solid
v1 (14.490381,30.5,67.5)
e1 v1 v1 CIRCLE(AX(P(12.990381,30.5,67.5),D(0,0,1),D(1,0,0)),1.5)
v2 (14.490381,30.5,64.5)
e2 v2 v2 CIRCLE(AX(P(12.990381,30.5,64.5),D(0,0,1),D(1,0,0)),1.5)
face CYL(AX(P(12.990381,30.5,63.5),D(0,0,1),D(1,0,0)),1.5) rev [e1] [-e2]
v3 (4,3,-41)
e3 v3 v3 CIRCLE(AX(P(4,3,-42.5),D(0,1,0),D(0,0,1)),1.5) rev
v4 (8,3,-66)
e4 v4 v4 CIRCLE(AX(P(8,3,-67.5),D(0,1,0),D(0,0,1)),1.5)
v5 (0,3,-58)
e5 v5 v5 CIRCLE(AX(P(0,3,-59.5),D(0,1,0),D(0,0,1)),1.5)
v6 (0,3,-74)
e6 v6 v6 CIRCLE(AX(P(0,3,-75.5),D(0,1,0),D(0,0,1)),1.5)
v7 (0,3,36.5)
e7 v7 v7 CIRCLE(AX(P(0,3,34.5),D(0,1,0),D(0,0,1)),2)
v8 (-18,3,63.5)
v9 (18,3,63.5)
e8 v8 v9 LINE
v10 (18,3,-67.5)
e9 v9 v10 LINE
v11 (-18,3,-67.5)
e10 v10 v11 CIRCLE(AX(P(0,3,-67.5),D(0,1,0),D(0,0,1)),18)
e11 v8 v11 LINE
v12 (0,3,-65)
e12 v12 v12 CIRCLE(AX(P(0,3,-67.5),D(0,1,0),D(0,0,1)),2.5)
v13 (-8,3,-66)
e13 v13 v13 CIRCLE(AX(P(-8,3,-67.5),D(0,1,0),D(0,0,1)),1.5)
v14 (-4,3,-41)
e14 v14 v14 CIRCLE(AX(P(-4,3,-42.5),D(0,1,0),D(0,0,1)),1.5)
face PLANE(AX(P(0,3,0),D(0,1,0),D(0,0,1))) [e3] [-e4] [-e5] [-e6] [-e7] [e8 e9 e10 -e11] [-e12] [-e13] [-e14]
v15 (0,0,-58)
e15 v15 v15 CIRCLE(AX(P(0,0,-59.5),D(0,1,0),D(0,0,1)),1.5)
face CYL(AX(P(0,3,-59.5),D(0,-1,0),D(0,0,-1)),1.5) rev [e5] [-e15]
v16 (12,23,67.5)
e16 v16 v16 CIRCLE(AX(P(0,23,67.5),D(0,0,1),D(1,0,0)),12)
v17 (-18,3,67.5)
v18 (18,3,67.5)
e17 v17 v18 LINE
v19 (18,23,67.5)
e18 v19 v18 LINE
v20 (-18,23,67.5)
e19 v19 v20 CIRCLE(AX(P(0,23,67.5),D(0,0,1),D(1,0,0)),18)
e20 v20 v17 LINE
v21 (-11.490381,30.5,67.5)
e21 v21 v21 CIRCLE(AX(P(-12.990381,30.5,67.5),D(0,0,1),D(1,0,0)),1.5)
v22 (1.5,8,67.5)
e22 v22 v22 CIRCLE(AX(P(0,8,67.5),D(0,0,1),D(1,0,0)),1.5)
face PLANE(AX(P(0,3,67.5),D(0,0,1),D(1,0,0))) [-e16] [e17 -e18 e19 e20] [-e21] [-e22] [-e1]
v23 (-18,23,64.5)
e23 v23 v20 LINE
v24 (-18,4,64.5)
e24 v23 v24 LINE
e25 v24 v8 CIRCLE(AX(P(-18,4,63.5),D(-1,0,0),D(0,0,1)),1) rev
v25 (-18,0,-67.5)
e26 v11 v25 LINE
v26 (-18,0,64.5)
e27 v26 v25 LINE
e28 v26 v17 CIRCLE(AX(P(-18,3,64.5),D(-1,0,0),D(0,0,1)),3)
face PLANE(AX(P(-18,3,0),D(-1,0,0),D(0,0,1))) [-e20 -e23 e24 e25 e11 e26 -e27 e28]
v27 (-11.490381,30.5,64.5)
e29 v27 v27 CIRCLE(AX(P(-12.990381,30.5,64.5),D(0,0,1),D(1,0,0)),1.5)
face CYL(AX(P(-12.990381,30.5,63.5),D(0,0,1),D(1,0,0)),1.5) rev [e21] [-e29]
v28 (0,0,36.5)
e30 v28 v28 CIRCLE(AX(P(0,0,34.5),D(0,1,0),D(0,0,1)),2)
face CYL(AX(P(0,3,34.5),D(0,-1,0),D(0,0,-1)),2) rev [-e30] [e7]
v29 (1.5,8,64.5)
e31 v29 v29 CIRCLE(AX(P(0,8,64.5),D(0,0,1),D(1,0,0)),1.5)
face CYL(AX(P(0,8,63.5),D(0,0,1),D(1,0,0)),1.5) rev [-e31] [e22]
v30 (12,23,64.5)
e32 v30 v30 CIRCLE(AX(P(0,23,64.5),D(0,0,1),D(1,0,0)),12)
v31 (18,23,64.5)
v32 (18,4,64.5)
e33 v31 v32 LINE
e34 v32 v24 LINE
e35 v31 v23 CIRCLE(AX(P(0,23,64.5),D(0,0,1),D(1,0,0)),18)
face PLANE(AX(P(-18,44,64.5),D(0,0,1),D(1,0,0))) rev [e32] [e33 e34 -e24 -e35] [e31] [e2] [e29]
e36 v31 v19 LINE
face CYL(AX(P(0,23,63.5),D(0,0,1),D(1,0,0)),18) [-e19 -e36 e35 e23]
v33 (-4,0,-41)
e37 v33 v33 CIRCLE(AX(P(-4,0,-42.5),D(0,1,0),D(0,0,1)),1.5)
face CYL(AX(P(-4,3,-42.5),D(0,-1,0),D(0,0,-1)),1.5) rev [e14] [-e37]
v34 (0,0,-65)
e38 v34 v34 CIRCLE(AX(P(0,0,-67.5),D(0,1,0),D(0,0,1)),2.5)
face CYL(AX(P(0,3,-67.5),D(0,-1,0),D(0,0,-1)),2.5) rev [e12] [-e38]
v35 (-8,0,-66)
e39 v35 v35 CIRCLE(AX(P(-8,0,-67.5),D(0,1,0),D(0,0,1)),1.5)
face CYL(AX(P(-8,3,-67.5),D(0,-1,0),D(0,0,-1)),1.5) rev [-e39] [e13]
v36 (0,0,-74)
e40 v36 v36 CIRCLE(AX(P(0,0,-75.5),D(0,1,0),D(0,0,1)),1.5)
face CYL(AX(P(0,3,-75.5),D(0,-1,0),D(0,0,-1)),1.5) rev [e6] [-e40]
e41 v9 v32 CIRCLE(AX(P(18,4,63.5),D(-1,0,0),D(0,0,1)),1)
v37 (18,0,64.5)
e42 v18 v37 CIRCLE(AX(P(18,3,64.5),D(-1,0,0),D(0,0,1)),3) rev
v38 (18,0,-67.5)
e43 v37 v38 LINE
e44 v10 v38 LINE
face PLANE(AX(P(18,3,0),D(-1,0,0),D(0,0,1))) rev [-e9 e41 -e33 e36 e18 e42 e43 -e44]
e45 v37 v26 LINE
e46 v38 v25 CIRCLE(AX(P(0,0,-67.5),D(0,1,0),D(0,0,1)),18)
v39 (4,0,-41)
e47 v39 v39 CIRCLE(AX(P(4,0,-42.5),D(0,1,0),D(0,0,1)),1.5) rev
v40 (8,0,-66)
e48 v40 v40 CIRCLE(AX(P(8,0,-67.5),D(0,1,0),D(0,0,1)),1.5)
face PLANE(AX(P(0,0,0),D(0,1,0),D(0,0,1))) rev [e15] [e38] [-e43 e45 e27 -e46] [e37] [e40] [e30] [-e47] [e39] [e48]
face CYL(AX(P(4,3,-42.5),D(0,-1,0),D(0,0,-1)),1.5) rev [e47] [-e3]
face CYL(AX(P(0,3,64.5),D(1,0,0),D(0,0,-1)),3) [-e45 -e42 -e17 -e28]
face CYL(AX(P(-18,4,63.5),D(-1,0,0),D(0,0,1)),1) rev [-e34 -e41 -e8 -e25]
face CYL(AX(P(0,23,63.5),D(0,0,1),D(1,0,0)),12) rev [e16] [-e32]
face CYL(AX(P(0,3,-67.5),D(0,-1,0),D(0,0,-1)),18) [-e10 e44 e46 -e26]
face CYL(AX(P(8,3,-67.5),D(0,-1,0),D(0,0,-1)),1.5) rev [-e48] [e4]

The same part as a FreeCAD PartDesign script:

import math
import FreeCAD as App
import Part
import Sketcher

V = App.Vector


def edges_at(feature, points):
    """Names of the edges that pass closest to the given points."""
    edges = feature.Shape.Edges
    near = lambda p: min(range(len(edges)), key=lambda i: edges[i].distToShape(Part.Vertex(*p))[0])
    return sorted({f"Edge{near(p) + 1}" for p in points})

doc = App.newDocument("Part")
body = doc.addObject("PartDesign::Body", "Body")

sketch1 = body.newObject("Sketcher::SketchObject", "Sketch")
sketch1.AttachmentSupport = (doc.getObject("XZ_Plane"), [""])
sketch1.MapMode = "FlatFace"
sketch1.addGeometry([
    Part.LineSegment(V(-18, 67.5, 0), V(18, 67.5, 0)),
    Part.LineSegment(V(18, 67.5, 0), V(18, -67.5, 0)),
    Part.ArcOfCircle(Part.Circle(V(0, -67.5, 0), V(0, 0, 1), 18), math.radians(180), math.radians(360)),
    Part.LineSegment(V(-18, -67.5, 0), V(-18, 67.5, 0)),
    Part.Circle(V(0, 34.5, 0), V(0, 0, 1), 2),
    Part.Circle(V(4, -42.5, 0), V(0, 0, 1), 1.5),
    Part.Circle(V(8, -67.5, 0), V(0, 0, 1), 1.5),
    Part.Circle(V(-4, -42.5, 0), V(0, 0, 1), 1.5),
    Part.Circle(V(0, -59.5, 0), V(0, 0, 1), 1.5),
    Part.Circle(V(0, -67.5, 0), V(0, 0, 1), 2.5),
    Part.Circle(V(0, -75.5, 0), V(0, 0, 1), 1.5),
    Part.Circle(V(-8, -67.5, 0), V(0, 0, 1), 1.5),
], False)
sketch1.addConstraint([
    Sketcher.Constraint("Coincident", 0, 2, 1, 1),
    Sketcher.Constraint("Tangent", 1, 2, 2, 2),
    Sketcher.Constraint("Tangent", 2, 1, 3, 1),
    Sketcher.Constraint("Coincident", 3, 2, 0, 1),
    Sketcher.Constraint("Horizontal", 0),
    Sketcher.Constraint("Vertical", 1),
    Sketcher.Constraint("Vertical", 3),
    Sketcher.Constraint("Coincident", 9, 3, 2, 3),
    Sketcher.Constraint("Equal", 5, 6),
    Sketcher.Constraint("Equal", 6, 7),
    Sketcher.Constraint("Equal", 7, 8),
    Sketcher.Constraint("Equal", 8, 10),
    Sketcher.Constraint("Equal", 10, 11),
    Sketcher.Constraint("Symmetric", 0, 2, 2, 1, -1, 1),
    Sketcher.Constraint("Symmetric", 5, 3, 7, 3, -2),
    Sketcher.Constraint("Symmetric", 6, 3, 11, 3, -2),
    Sketcher.Constraint("PointOnObject", 4, 3, -2),
    Sketcher.Constraint("PointOnObject", 8, 3, -2),
    Sketcher.Constraint("PointOnObject", 10, 3, -2),
    Sketcher.Constraint("Horizontal", 2, 3, 6, 3),
    Sketcher.Constraint("Diameter", 4, 4.0),
    Sketcher.Constraint("Diameter", 5, 3.0),
    Sketcher.Constraint("Diameter", 9, 5.0),
    Sketcher.Constraint("Radius", 2, 18.0),
    Sketcher.Constraint("DistanceY", 1, 2, 1, 1, 135.0),
    Sketcher.Constraint("DistanceX", -1, 1, 5, 3, 4.0),
    Sketcher.Constraint("DistanceX", -1, 1, 6, 3, 8.0),
    Sketcher.Constraint("DistanceY", 2, 3, 4, 3, 102.0),
    Sketcher.Constraint("DistanceY", 2, 3, 5, 3, 25.0),
    Sketcher.Constraint("DistanceY", 2, 3, 8, 3, 8.0),
    Sketcher.Constraint("DistanceY", 10, 3, 2, 3, 8.0),
])
pad1 = body.newObject("PartDesign::Pad", "Pad")
pad1.Profile = sketch1
pad1.Length = 3
pad1.Reversed = True

sketch2 = body.newObject("Sketcher::SketchObject", "Sketch001")
sketch2.AttachmentSupport = (doc.getObject("XZ_Plane"), [""])
sketch2.MapMode = "FlatFace"
sketch2.AttachmentOffset = App.Placement(V(0, 0, -3), App.Rotation())
sketch2.addGeometry([
    Part.LineSegment(V(-18, 64.5, 0), V(-18, 67.5, 0)),
    Part.LineSegment(V(-18, 67.5, 0), V(18, 67.5, 0)),
    Part.LineSegment(V(18, 67.5, 0), V(18, 64.5, 0)),
    Part.LineSegment(V(18, 64.5, 0), V(-18, 64.5, 0)),
], False)
sketch2.addConstraint([
    Sketcher.Constraint("Coincident", 0, 2, 1, 1),
    Sketcher.Constraint("Coincident", 1, 2, 2, 1),
    Sketcher.Constraint("Coincident", 2, 2, 3, 1),
    Sketcher.Constraint("Coincident", 3, 2, 0, 1),
    Sketcher.Constraint("Vertical", 0),
    Sketcher.Constraint("Horizontal", 1),
    Sketcher.Constraint("Vertical", 2),
    Sketcher.Constraint("Horizontal", 3),
    Sketcher.Constraint("DistanceX", 1, 1, 1, 2, 36.0),
    Sketcher.Constraint("DistanceY", 0, 1, 0, 2, 3.0),
    Sketcher.Constraint("DistanceX", 0, 2, -1, 1, 18.0),
    Sketcher.Constraint("DistanceY", -1, 1, 0, 2, 67.5),
])
pad2 = body.newObject("PartDesign::Pad", "Pad001")
pad2.Profile = sketch2
pad2.Length = 41
pad2.Reversed = True

sketch3 = body.newObject("Sketcher::SketchObject", "Sketch002")
sketch3.AttachmentSupport = (doc.getObject("XY_Plane"), [""])
sketch3.MapMode = "FlatFace"
sketch3.AttachmentOffset = App.Placement(V(0, 0, 67.5), App.Rotation())
sketch3.addGeometry([
    Part.LineSegment(V(-18, 44, 0), V(-18, 23, 0)),
    Part.ArcOfCircle(Part.Circle(V(0, 23, 0), V(0, 0, 1), 18), math.radians(0), math.radians(180)),
    Part.LineSegment(V(18, 23, 0), V(18, 44, 0)),
    Part.LineSegment(V(18, 44, 0), V(-18, 44, 0)),
], False)
sketch3.addConstraint([
    Sketcher.Constraint("Tangent", 0, 2, 1, 2),
    Sketcher.Constraint("Tangent", 1, 1, 2, 1),
    Sketcher.Constraint("Coincident", 2, 2, 3, 1),
    Sketcher.Constraint("Coincident", 3, 2, 0, 1),
    Sketcher.Constraint("Vertical", 0),
    Sketcher.Constraint("Vertical", 2),
    Sketcher.Constraint("Horizontal", 3),
    Sketcher.Constraint("PointOnObject", 1, 3, -2),
    Sketcher.Constraint("Radius", 1, 18.0),
    Sketcher.Constraint("DistanceY", 0, 2, 0, 1, 21.0),
    Sketcher.Constraint("DistanceY", -1, 1, 1, 3, 23.0),
])
pocket1 = body.newObject("PartDesign::Pocket", "Pocket")
pocket1.Profile = sketch3
pocket1.Length = 4

sketch4 = body.newObject("Sketcher::SketchObject", "Sketch003")
sketch4.AttachmentSupport = (doc.getObject("XY_Plane"), [""])
sketch4.MapMode = "FlatFace"
sketch4.AttachmentOffset = App.Placement(V(0, 0, 67.5), App.Rotation())
sketch4.addGeometry([
    Part.Circle(V(0, 8, 0), V(0, 0, 1), 1.5),
    Part.Circle(V(-12.990381, 30.5, 0), V(0, 0, 1), 1.5),
    Part.Circle(V(12.990381, 30.5, 0), V(0, 0, 1), 1.5),
    Part.Circle(V(0, 23, 0), V(0, 0, 1), 12),
], False)
sketch4.addConstraint([
    Sketcher.Constraint("Equal", 0, 1),
    Sketcher.Constraint("Equal", 1, 2),
    Sketcher.Constraint("Symmetric", 1, 3, 2, 3, -2),
    Sketcher.Constraint("PointOnObject", 0, 3, -2),
    Sketcher.Constraint("PointOnObject", 3, 3, -2),
    Sketcher.Constraint("Diameter", 0, 3.0),
    Sketcher.Constraint("Diameter", 3, 24.0),
    Sketcher.Constraint("DistanceY", -1, 1, 0, 3, 8.0),
    Sketcher.Constraint("DistanceY", -1, 1, 3, 3, 23.0),
    Sketcher.Constraint("DistanceY", -1, 1, 1, 3, 30.5),
    Sketcher.Constraint("DistanceX", 1, 3, -1, 1, 12.990381),
])
pocket2 = body.newObject("PartDesign::Pocket", "Pocket001")
pocket2.Profile = sketch4
pocket2.Length = 4
doc.recompute()

fillet = body.newObject("PartDesign::Fillet", "Fillet")
fillet.Base = (pocket2, edges_at(pocket2, [(0, 0, 67.5)]))
fillet.Radius = 3
doc.recompute()

fillet2 = body.newObject("PartDesign::Fillet", "Fillet001")
fillet2.Base = (fillet, edges_at(fillet, [(0, 3, 64.5)]))
fillet2.Radius = 1

doc.recompute()
